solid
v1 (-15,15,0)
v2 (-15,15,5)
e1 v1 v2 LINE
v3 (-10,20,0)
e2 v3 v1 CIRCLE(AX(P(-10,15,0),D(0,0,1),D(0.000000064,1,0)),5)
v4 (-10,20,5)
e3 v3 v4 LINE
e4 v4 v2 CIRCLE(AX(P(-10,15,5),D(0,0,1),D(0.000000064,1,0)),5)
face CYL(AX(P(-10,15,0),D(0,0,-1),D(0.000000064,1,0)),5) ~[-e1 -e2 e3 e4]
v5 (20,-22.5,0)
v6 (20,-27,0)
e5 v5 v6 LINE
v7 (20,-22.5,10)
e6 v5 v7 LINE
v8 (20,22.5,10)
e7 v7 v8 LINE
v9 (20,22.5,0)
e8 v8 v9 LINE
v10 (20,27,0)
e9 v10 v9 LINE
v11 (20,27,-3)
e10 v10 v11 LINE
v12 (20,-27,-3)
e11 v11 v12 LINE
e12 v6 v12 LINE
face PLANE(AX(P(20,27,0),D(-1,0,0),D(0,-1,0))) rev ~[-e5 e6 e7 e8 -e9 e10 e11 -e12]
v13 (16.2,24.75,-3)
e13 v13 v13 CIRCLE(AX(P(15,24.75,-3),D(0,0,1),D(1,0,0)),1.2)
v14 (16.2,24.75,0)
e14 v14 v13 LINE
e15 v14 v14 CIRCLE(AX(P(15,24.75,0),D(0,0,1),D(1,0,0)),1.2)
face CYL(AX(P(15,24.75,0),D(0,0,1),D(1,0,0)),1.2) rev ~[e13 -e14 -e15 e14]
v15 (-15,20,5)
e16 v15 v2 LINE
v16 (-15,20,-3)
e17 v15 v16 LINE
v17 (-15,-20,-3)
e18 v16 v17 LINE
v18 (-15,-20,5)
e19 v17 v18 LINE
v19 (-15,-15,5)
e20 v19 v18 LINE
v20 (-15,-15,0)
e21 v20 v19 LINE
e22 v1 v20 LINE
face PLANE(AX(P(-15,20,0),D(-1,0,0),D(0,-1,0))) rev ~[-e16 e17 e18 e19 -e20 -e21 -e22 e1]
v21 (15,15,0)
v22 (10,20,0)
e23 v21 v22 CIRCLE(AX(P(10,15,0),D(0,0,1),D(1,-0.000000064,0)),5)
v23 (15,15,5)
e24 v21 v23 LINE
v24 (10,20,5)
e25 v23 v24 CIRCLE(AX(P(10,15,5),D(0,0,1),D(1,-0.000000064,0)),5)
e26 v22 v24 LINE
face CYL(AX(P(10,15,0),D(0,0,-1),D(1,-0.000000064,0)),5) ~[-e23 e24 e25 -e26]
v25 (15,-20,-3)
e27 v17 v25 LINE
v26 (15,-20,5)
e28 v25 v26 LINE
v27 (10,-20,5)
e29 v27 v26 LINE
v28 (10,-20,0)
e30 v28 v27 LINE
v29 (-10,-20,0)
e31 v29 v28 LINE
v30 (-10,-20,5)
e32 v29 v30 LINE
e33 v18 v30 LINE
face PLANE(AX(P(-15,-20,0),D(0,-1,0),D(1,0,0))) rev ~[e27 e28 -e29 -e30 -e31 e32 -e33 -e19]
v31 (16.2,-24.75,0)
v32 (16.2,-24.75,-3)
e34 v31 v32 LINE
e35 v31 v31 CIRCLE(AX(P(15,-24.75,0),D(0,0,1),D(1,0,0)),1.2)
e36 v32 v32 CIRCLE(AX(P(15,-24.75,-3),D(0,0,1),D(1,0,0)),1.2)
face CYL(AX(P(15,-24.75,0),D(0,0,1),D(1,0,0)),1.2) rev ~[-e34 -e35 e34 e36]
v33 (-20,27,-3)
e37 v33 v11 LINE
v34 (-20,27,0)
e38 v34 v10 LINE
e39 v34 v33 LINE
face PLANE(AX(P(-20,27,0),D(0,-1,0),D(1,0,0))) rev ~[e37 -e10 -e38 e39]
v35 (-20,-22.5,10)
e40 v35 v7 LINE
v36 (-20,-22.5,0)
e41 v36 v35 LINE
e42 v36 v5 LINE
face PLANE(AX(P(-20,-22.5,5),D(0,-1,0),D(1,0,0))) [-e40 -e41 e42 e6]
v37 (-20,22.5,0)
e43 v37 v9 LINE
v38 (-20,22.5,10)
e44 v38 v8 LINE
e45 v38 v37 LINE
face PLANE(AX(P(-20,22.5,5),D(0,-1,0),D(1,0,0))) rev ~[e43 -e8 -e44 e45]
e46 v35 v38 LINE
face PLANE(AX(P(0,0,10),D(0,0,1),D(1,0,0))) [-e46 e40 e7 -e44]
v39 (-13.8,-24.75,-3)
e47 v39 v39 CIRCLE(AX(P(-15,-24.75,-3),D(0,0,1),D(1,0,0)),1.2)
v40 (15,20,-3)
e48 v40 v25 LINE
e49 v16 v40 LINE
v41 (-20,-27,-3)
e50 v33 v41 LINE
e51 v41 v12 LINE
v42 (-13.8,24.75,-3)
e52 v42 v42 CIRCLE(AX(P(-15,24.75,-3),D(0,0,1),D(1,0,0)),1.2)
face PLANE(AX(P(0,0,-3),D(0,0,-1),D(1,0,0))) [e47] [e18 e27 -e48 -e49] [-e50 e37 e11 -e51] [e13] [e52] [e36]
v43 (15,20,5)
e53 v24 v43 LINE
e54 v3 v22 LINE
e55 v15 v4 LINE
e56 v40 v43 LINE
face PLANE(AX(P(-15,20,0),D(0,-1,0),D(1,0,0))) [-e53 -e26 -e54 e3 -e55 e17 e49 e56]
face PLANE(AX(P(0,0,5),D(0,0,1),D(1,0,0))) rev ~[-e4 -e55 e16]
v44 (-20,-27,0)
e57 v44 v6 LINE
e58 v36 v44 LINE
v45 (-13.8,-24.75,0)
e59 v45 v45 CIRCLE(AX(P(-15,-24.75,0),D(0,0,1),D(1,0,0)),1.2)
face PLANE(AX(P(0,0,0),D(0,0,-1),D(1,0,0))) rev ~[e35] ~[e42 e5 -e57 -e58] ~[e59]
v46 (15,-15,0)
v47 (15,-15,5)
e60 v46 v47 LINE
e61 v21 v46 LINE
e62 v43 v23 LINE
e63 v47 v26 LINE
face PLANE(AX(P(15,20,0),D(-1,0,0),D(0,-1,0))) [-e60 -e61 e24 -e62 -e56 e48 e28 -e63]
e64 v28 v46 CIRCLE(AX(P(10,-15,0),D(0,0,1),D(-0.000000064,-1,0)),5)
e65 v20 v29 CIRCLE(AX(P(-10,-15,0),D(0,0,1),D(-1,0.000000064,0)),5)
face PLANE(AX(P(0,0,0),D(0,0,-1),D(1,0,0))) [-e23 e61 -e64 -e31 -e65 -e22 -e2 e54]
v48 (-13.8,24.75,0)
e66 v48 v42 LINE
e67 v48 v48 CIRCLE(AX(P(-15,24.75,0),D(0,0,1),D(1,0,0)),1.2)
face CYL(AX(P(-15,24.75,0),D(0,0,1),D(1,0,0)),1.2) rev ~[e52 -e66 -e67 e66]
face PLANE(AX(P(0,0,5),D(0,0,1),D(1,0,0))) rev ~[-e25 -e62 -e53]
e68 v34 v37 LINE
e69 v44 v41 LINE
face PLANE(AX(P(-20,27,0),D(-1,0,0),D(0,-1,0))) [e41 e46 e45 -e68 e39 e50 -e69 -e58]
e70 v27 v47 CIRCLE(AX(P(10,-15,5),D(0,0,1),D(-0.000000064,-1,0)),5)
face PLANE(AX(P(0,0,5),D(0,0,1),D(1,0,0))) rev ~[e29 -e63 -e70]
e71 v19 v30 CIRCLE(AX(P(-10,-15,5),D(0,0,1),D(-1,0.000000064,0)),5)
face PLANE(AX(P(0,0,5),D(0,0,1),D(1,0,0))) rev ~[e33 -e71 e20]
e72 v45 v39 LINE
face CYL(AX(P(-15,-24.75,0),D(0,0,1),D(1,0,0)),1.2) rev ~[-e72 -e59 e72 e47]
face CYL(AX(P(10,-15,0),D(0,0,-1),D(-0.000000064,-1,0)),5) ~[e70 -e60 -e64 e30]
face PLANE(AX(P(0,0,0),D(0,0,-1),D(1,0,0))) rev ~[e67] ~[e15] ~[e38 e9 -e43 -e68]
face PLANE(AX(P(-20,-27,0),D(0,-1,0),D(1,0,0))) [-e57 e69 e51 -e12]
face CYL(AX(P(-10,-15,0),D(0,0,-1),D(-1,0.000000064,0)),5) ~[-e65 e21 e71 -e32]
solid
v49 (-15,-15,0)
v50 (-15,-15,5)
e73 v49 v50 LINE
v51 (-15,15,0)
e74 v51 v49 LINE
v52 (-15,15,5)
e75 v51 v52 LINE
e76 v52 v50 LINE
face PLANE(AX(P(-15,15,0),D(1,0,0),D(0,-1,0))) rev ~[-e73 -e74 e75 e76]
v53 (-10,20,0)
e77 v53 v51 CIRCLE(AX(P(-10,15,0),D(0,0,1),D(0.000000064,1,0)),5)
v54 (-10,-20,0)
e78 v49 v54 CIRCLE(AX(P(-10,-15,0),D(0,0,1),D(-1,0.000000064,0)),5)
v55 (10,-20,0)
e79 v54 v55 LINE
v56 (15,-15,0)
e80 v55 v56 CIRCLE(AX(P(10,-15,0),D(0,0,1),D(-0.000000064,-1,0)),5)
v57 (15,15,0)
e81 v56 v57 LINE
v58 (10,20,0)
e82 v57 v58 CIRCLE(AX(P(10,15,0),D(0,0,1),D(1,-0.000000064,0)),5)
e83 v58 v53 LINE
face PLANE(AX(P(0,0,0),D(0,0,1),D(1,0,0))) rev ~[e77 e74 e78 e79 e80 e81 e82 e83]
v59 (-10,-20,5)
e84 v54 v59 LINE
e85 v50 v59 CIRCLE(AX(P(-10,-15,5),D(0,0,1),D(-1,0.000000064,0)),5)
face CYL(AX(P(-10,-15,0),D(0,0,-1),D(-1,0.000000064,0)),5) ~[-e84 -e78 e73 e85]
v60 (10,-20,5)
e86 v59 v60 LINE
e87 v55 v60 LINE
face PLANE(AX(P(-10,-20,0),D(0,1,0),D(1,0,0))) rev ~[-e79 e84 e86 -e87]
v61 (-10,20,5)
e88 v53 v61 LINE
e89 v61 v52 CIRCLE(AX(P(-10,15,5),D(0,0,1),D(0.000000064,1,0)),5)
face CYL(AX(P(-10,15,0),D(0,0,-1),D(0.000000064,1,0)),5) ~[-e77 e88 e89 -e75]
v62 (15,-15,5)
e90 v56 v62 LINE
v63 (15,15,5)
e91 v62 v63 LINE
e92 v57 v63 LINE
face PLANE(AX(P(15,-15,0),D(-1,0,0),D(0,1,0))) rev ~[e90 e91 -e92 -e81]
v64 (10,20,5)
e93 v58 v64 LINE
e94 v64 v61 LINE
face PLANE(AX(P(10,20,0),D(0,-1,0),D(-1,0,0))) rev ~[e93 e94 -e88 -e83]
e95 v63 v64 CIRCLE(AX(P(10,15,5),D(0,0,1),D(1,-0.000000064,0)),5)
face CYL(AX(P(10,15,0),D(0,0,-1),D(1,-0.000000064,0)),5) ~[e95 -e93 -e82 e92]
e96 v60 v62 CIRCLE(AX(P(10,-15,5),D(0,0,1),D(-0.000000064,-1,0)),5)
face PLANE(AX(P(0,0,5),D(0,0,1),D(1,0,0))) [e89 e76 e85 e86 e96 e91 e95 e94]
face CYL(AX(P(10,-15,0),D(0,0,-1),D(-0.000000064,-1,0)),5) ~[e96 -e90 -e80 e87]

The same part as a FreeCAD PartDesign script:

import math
import FreeCAD as App
import Part
import Sketcher
Q = App.Units.Quantity

doc = App.newDocument("Part")
body = doc.addObject("PartDesign::Body", "Body")

# Sketch on XY plane
sketch1 = body.newObject("Sketcher::SketchObject", "Sketch")
sketch1.AttachmentSupport = (doc.getObject("XY_Plane"), [""])
sketch1.MapMode = "FlatFace"
sketch1.addGeometry([
    Part.LineSegment(App.Vector(15, -15, 0), App.Vector(15, 15, 0)),  # 0
    Part.ArcOfCircle(Part.Circle(App.Vector(10, 15, 0), App.Vector(0, 0, 1), 5), math.radians(0), math.radians(90)),  # 1
    Part.LineSegment(App.Vector(10, 20, 0), App.Vector(-10, 20, 0)),  # 2
    Part.ArcOfCircle(Part.Circle(App.Vector(-10, 15, 0), App.Vector(0, 0, 1), 5), math.radians(90), math.radians(180)),  # 3
    Part.LineSegment(App.Vector(-15, 15, 0), App.Vector(-15, -15, 0)),  # 4
    Part.ArcOfCircle(Part.Circle(App.Vector(-10, -15, 0), App.Vector(0, 0, 1), 5), math.radians(180), math.radians(270)),  # 5
    Part.LineSegment(App.Vector(-10, -20, 0), App.Vector(10, -20, 0)),  # 6
    Part.ArcOfCircle(Part.Circle(App.Vector(10, -15, 0), App.Vector(0, 0, 1), 5), math.radians(-90), math.radians(0)),  # 7
], False)
sketch1.addConstraint([
    Sketcher.Constraint("Tangent", 0, 2, 1, 1),
    Sketcher.Constraint("Tangent", 1, 2, 2, 1),
    Sketcher.Constraint("Tangent", 2, 2, 3, 1),
    Sketcher.Constraint("Tangent", 3, 2, 4, 1),
    Sketcher.Constraint("Tangent", 4, 2, 5, 1),
    Sketcher.Constraint("Tangent", 5, 2, 6, 1),
    Sketcher.Constraint("Tangent", 6, 2, 7, 1),
    Sketcher.Constraint("Tangent", 7, 2, 0, 1),
    Sketcher.Constraint("Vertical", 0),
    Sketcher.Constraint("Horizontal", 2),
    Sketcher.Constraint("Vertical", 4),
    Sketcher.Constraint("Horizontal", 6),
    Sketcher.Constraint("Equal", 1, 3),
    Sketcher.Constraint("Equal", 3, 5),
    Sketcher.Constraint("Equal", 5, 7),
    Sketcher.Constraint("Symmetric", 1, 3, 5, 3, -1, 1),
    Sketcher.Constraint("Radius", 1, Q("5 mm")),
    Sketcher.Constraint("DistanceX", 2, 2, 2, 1, Q("20 mm")),
    Sketcher.Constraint("DistanceY", 0, 1, 0, 2, Q("30 mm")),
])
pad1 = body.newObject("PartDesign::Pad", "Pad")
pad1.Profile = sketch1
pad1.Length = 5
body2 = doc.addObject("PartDesign::Body", "Body001")

# Sketch on XY plane
sketch2 = body2.newObject("Sketcher::SketchObject", "Sketch001")
sketch2.AttachmentSupport = (doc.getObject("XY_Plane001"), [""])
sketch2.MapMode = "FlatFace"
sketch2.addGeometry([
    Part.LineSegment(App.Vector(15, -15, 0), App.Vector(15, 15, 0)),  # 0
    Part.ArcOfCircle(Part.Circle(App.Vector(10, 15, 0), App.Vector(0, 0, 1), 5), math.radians(0), math.radians(90)),  # 1
    Part.LineSegment(App.Vector(10, 20, 0), App.Vector(-10, 20, 0)),  # 2
    Part.ArcOfCircle(Part.Circle(App.Vector(-10, 15, 0), App.Vector(0, 0, 1), 5), math.radians(90), math.radians(180)),  # 3
    Part.LineSegment(App.Vector(-15, 15, 0), App.Vector(-15, -15, 0)),  # 4
    Part.ArcOfCircle(Part.Circle(App.Vector(-10, -15, 0), App.Vector(0, 0, 1), 5), math.radians(180), math.radians(270)),  # 5
    Part.LineSegment(App.Vector(-10, -20, 0), App.Vector(10, -20, 0)),  # 6
    Part.ArcOfCircle(Part.Circle(App.Vector(10, -15, 0), App.Vector(0, 0, 1), 5), math.radians(-90), math.radians(0)),  # 7
], False)
sketch2.addConstraint([
    Sketcher.Constraint("Tangent", 0, 2, 1, 1),
    Sketcher.Constraint("Tangent", 1, 2, 2, 1),
    Sketcher.Constraint("Tangent", 2, 2, 3, 1),
    Sketcher.Constraint("Tangent", 3, 2, 4, 1),
    Sketcher.Constraint("Tangent", 4, 2, 5, 1),
    Sketcher.Constraint("Tangent", 5, 2, 6, 1),
    Sketcher.Constraint("Tangent", 6, 2, 7, 1),
    Sketcher.Constraint("Tangent", 7, 2, 0, 1),
    Sketcher.Constraint("Vertical", 0),
    Sketcher.Constraint("Horizontal", 2),
    Sketcher.Constraint("Vertical", 4),
    Sketcher.Constraint("Horizontal", 6),
    Sketcher.Constraint("Equal", 1, 3),
    Sketcher.Constraint("Equal", 3, 5),
    Sketcher.Constraint("Equal", 5, 7),
    Sketcher.Constraint("Symmetric", 1, 3, 5, 3, -1, 1),
    Sketcher.Constraint("Radius", 1, Q("5 mm")),
    Sketcher.Constraint("DistanceX", 2, 2, 2, 1, Q("20 mm")),
    Sketcher.Constraint("DistanceY", 0, 1, 0, 2, Q("30 mm")),
])
pad2 = body2.newObject("PartDesign::Pad", "Pad001")
pad2.Profile = sketch2
pad2.Length = 5

# Sketch on XY plane
sketch3 = body2.newObject("Sketcher::SketchObject", "Sketch002")
sketch3.AttachmentSupport = (doc.getObject("XY_Plane001"), [""])
sketch3.MapMode = "FlatFace"
sketch3.AttachmentOffset = App.Placement(App.Vector(0, 0, 5), App.Rotation())
sketch3.addGeometry([
    Part.LineSegment(App.Vector(-20, 22, 0), App.Vector(-20, -22, 0)),
    Part.LineSegment(App.Vector(-20, -22, 0), App.Vector(20, -22, 0)),
    Part.LineSegment(App.Vector(20, -22, 0), App.Vector(20, 22, 0)),
    Part.LineSegment(App.Vector(20, 22, 0), App.Vector(-20, 22, 0)),
], False)
sketch3.addConstraint([
    Sketcher.Constraint("Coincident", 0, 2, 1, 1),
    Sketcher.Constraint("Coincident", 1, 2, 2, 1),
    Sketcher.Constraint("Coincident", 2, 2, 3, 1),
    Sketcher.Constraint("Coincident", 3, 2, 0, 1),
    Sketcher.Constraint("Vertical", 0),
    Sketcher.Constraint("Horizontal", 1),
    Sketcher.Constraint("Vertical", 2),
    Sketcher.Constraint("Horizontal", 3),
    Sketcher.Constraint("Symmetric", 0, 2, 2, 2, -1, 1),
    Sketcher.Constraint("DistanceX", 1, 1, 1, 2, Q("40 mm")),
    Sketcher.Constraint("DistanceY", 0, 2, 0, 1, Q("45 mm")),
])
pad3 = body2.newObject("PartDesign::Pad", "Pad002")
pad3.Profile = sketch3
pad3.Length = 5

# Sketch on XY plane
sketch4 = body2.newObject("Sketcher::SketchObject", "Sketch003")
sketch4.AttachmentSupport = (doc.getObject("XY_Plane001"), [""])
sketch4.MapMode = "FlatFace"
sketch4.AttachmentOffset = App.Placement(App.Vector(0, 0, 5), App.Rotation())
sketch4.addGeometry([
    Part.LineSegment(App.Vector(-20, -22, 0), App.Vector(-20, 22, 0)),  # 0
    Part.LineSegment(App.Vector(-20, 22, 0), App.Vector(20, 22, 0)),  # 1
    Part.LineSegment(App.Vector(20, 22, 0), App.Vector(20, -22, 0)),  # 2
    Part.LineSegment(App.Vector(20, -22, 0), App.Vector(-20, -22, 0)),  # 3
    Part.LineSegment(App.Vector(15, 20, 0), App.Vector(-15, 20, 0)),  # 4
    Part.LineSegment(App.Vector(-15, 20, 0), App.Vector(-15, -20, 0)),  # 5
    Part.LineSegment(App.Vector(-15, -20, 0), App.Vector(15, -20, 0)),  # 6
    Part.LineSegment(App.Vector(15, -20, 0), App.Vector(15, 20, 0)),  # 7
], False)
sketch4.addConstraint([
    Sketcher.Constraint("Coincident", 0, 2, 1, 1),
    Sketcher.Constraint("Coincident", 1, 2, 2, 1),
    Sketcher.Constraint("Coincident", 2, 2, 3, 1),
    Sketcher.Constraint("Coincident", 3, 2, 0, 1),
    Sketcher.Constraint("Coincident", 4, 2, 5, 1),
    Sketcher.Constraint("Coincident", 5, 2, 6, 1),
    Sketcher.Constraint("Coincident", 6, 2, 7, 1),
    Sketcher.Constraint("Coincident", 7, 2, 4, 1),
    Sketcher.Constraint("Vertical", 0),
    Sketcher.Constraint("Horizontal", 1),
    Sketcher.Constraint("Vertical", 2),
    Sketcher.Constraint("Horizontal", 3),
    Sketcher.Constraint("Horizontal", 4),
    Sketcher.Constraint("Vertical", 5),
    Sketcher.Constraint("Horizontal", 6),
    Sketcher.Constraint("Vertical", 7),
    Sketcher.Constraint("Symmetric", 0, 2, 2, 2, -1, 1),
    Sketcher.Constraint("Symmetric", 4, 2, 6, 2, -1, 1),
    Sketcher.Constraint("Equal", 3, 5),
    Sketcher.Constraint("DistanceX", 1, 1, 1, 2, Q("40 mm")),
    Sketcher.Constraint("DistanceX", 4, 2, 4, 1, Q("30 mm")),
    Sketcher.Constraint("DistanceY", 0, 1, 0, 2, Q("45 mm")),
])
pad4 = body2.newObject("PartDesign::Pad", "Pad003")
pad4.Profile = sketch4
pad4.Length = 5
pad4.Reversed = True

# Sketch on XY plane
sketch5 = body2.newObject("Sketcher::SketchObject", "Sketch004")
sketch5.AttachmentSupport = (doc.getObject("XY_Plane001"), [""])
sketch5.MapMode = "FlatFace"
sketch5.addGeometry([
    Part.LineSegment(App.Vector(-20, -27, 0), App.Vector(-20, 27, 0)),  # 0
    Part.LineSegment(App.Vector(-20, 27, 0), App.Vector(20, 27, 0)),  # 1
    Part.LineSegment(App.Vector(20, 27, 0), App.Vector(20, -27, 0)),  # 2
    Part.LineSegment(App.Vector(20, -27, 0), App.Vector(-20, -27, 0)),  # 3
    Part.LineSegment(App.Vector(15, 20, 0), App.Vector(-15, 20, 0)),  # 4
    Part.LineSegment(App.Vector(-15, 20, 0), App.Vector(-15, -20, 0)),  # 5
    Part.LineSegment(App.Vector(-15, -20, 0), App.Vector(15, -20, 0)),  # 6
    Part.LineSegment(App.Vector(15, -20, 0), App.Vector(15, 20, 0)),  # 7
], False)
sketch5.addConstraint([
    Sketcher.Constraint("Coincident", 0, 2, 1, 1),
    Sketcher.Constraint("Coincident", 1, 2, 2, 1),
    Sketcher.Constraint("Coincident", 2, 2, 3, 1),
    Sketcher.Constraint("Coincident", 3, 2, 0, 1),
    Sketcher.Constraint("Coincident", 4, 2, 5, 1),
    Sketcher.Constraint("Coincident", 5, 2, 6, 1),
    Sketcher.Constraint("Coincident", 6, 2, 7, 1),
    Sketcher.Constraint("Coincident", 7, 2, 4, 1),
    Sketcher.Constraint("Vertical", 0),
    Sketcher.Constraint("Horizontal", 1),
    Sketcher.Constraint("Vertical", 2),
    Sketcher.Constraint("Horizontal", 3),
    Sketcher.Constraint("Horizontal", 4),
    Sketcher.Constraint("Vertical", 5),
    Sketcher.Constraint("Horizontal", 6),
    Sketcher.Constraint("Vertical", 7),
    Sketcher.Constraint("Symmetric", 0, 2, 2, 2, -1, 1),
    Sketcher.Constraint("Symmetric", 4, 2, 6, 2, -1, 1),
    Sketcher.Constraint("Equal", 3, 5),
    Sketcher.Constraint("DistanceX", 1, 1, 1, 2, Q("40 mm")),
    Sketcher.Constraint("DistanceX", 4, 2, 4, 1, Q("30 mm")),
    Sketcher.Constraint("DistanceY", 0, 1, 0, 2, Q("54 mm")),
])
pad5 = body2.newObject("PartDesign::Pad", "Pad004")
pad5.Profile = sketch5
pad5.Length = 3
pad5.Reversed = True

# Sketch on XY plane
sketch6 = body2.newObject("Sketcher::SketchObject", "Sketch005")
sketch6.AttachmentSupport = (doc.getObject("XY_Plane001"), [""])
sketch6.MapMode = "FlatFace"
sketch6.addGeometry([
    Part.Circle(App.Vector(-15, -24.8, 0), App.Vector(0, 0, 1), 1.2),
    Part.Circle(App.Vector(15, -24.8, 0), App.Vector(0, 0, 1), 1.2),
    Part.Circle(App.Vector(15, 24.8, 0), App.Vector(0, 0, 1), 1.2),
    Part.Circle(App.Vector(-15, 24.8, 0), App.Vector(0, 0, 1), 1.2),
], False)
sketch6.addConstraint([
    Sketcher.Constraint("Equal", 0, 1),
    Sketcher.Constraint("Equal", 1, 2),
    Sketcher.Constraint("Equal", 2, 3),
    Sketcher.Constraint("Symmetric", 0, 3, 2, 3, -1, 1),
    Sketcher.Constraint("Symmetric", 1, 3, 3, 3, -1, 1),
    Sketcher.Constraint("Symmetric", 0, 3, 1, 3, -2),
    Sketcher.Constraint("Diameter", 0, Q("2.4 mm")),
    Sketcher.Constraint("DistanceX", 0, 3, -1, 1, Q("15 mm")),
    Sketcher.Constraint("DistanceY", 1, 3, 2, 3, Q("49.5 mm")),
])
pocket1 = body2.newObject("PartDesign::Pocket", "Pocket")
pocket1.Profile = sketch6
pocket1.Length = 25

doc.recompute()
